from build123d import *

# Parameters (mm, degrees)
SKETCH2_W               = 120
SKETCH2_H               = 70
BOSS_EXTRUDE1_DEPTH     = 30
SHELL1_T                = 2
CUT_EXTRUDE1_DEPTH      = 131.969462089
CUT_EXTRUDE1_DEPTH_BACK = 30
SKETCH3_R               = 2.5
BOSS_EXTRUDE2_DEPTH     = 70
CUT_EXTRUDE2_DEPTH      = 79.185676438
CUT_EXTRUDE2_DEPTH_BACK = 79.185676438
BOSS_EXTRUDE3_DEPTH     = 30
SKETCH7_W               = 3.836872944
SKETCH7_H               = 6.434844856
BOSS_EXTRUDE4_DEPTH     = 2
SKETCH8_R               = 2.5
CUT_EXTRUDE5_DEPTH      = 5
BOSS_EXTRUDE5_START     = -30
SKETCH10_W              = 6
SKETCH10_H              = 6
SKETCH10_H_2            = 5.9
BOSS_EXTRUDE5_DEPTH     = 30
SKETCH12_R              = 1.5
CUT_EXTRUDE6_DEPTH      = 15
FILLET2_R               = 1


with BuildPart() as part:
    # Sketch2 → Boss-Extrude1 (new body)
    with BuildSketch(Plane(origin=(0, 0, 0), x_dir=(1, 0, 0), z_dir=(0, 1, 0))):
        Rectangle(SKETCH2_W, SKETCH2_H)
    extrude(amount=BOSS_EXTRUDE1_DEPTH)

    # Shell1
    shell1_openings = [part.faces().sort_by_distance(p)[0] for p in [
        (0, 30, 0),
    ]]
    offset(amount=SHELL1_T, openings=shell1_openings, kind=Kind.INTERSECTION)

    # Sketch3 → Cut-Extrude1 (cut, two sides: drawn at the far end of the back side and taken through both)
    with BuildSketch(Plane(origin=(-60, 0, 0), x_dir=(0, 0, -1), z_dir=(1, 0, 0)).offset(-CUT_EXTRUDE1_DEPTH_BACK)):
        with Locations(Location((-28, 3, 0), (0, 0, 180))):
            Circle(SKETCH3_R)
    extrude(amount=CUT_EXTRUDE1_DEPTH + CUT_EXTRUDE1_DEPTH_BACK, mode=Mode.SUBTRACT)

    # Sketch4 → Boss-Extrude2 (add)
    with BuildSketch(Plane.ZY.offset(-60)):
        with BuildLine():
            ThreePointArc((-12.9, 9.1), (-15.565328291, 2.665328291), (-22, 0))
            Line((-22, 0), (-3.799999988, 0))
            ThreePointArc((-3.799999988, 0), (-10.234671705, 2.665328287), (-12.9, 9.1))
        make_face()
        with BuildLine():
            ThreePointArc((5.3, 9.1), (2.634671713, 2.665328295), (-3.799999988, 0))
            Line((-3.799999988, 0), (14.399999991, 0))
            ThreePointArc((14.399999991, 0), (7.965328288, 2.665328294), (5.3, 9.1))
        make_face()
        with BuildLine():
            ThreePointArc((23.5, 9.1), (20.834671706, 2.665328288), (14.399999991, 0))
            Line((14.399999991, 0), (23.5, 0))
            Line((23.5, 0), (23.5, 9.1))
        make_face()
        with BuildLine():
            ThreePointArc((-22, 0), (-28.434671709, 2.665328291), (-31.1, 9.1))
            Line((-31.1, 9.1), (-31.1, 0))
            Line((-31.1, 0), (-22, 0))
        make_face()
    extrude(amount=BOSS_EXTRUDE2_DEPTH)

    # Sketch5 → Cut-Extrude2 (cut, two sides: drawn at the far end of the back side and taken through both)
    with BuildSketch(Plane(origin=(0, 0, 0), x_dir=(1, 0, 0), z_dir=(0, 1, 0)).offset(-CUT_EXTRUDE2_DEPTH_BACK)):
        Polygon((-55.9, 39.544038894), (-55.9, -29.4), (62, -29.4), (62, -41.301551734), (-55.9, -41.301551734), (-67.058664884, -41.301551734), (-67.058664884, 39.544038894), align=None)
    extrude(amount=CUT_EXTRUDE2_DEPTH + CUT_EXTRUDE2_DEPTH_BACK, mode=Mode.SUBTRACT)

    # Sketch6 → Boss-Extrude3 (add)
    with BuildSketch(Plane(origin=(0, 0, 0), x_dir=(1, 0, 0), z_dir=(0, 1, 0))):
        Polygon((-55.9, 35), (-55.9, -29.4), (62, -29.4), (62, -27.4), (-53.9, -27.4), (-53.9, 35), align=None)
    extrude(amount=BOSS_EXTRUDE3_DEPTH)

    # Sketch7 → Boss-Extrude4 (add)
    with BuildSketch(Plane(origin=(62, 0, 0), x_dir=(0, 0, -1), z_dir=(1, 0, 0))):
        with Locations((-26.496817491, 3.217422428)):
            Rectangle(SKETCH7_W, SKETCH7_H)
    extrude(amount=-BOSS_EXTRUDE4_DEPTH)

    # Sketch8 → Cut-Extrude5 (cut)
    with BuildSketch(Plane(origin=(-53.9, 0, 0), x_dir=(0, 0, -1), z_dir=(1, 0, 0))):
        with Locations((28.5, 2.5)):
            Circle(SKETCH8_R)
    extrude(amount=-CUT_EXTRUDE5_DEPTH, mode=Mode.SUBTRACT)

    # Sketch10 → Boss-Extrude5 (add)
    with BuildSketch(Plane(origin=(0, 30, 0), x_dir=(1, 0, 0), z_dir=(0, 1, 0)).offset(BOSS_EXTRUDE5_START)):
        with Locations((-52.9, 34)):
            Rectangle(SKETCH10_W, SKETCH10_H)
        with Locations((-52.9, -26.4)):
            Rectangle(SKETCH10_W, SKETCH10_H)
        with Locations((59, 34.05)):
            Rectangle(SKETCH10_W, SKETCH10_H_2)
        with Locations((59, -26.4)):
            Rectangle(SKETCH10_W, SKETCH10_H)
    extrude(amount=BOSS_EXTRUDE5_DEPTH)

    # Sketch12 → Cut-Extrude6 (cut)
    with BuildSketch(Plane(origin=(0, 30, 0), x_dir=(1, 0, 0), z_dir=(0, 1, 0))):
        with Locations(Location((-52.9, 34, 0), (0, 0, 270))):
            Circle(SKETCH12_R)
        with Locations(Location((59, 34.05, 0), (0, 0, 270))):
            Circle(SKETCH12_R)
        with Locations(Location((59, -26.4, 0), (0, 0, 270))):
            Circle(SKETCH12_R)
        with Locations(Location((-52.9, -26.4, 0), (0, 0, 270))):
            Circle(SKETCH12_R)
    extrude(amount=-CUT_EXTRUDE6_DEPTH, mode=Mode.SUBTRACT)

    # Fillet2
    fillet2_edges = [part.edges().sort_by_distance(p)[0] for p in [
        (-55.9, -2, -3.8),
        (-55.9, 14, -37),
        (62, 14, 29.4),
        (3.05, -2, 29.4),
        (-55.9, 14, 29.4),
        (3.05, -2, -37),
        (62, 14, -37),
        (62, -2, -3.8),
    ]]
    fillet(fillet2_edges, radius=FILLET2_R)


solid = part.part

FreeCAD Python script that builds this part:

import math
import FreeCAD as App
import Part
import Sketcher
from FreeCAD import Vector


def edges_at(feature, points):
    """Names of the edges that pass closest to the given points."""
    edges = feature.Shape.Edges
    near = lambda p: min(range(len(edges)), key=lambda i: edges[i].distToShape(Part.Vertex(*p))[0])
    return sorted({f"Edge{near(p) + 1}" for p in points})


def faces_at(feature, points):
    """Names of the faces that lie closest to the given points."""
    faces = feature.Shape.Faces
    near = lambda p: min(range(len(faces)), key=lambda i: faces[i].distToShape(Part.Vertex(*p))[0])
    return sorted({f"Face{near(p) + 1}" for p in points})


def add_polygon(sketch, points):
    """Adds a closed chain of lines whose ends are joined by coincident constraints."""
    first, n = sketch.GeometryCount, len(points)
    for a, b in zip(points, points[1:] + points[:1]):
        sketch.addGeometry(Part.LineSegment(App.Vector(*a, 0), App.Vector(*b, 0)), False)
    for i in range(n):
        sketch.addConstraint(Sketcher.Constraint("Coincident", first + i, 2, first + (i + 1) % n, 1))

doc = App.newDocument("Part")
params = doc.addObject("Spreadsheet::Sheet", "Params")
for row, (alias, value) in enumerate([
    ("sketch1_width", "120 mm"),
    ("sketch1_height", "70 mm"),
    ("pad1_length", "30 mm"),
    ("thickness_wall", "2 mm"),
    ("sketch2_diameter", "5 mm"),
    ("sketch3_radius", "9.1 mm"),
    ("pad2_length", "70 mm"),
    ("sketch4_width", "117.9 mm"),
    ("sketch5_width", "2 mm"),
    ("sketch5_width2", "117.9 mm"),
    ("sketch5_height", "64.4 mm"),
    ("pad3_length", "30 mm"),
    ("pad4_length", "2 mm"),
    ("sketch7_diameter", "5 mm"),
    ("pocket3_length", "5 mm"),
    ("sketch8_width", "6 mm"),
    ("sketch8_height", "5.9 mm"),
    ("pad5_length", "30 mm"),
    ("sketch9_diameter", "3 mm"),
    ("pocket4_length", "15 mm"),
    ("fillet_radius", "1 mm"),
], start=1):
    params.set(f"A{row}", alias)
    params.set(f"B{row}", "=" + value)
    params.setAlias(f"B{row}", alias)

body = doc.addObject("PartDesign::Body", "Body")

# Sketch on XZ plane
sketch1 = doc.addObject("Sketcher::SketchObject", "Sketch")
body.addObject(sketch1)
sketch1.AttachmentSupport = (doc.XZ_Plane, [""])
sketch1.MapMode = "FlatFace"
add_polygon(sketch1, [(-60, -35), (-60, 35), (60, 35), (60, -35)])  # lines 0-3
sketch1.addConstraint([
    Sketcher.Constraint("Vertical", 0),
    Sketcher.Constraint("Horizontal", 1),
    Sketcher.Constraint("Vertical", 2),
    Sketcher.Constraint("Horizontal", 3),
    Sketcher.Constraint("Symmetric", 0, 2, 2, 2, -1, 1),
    Sketcher.Constraint("DistanceX", 1, 1, 1, 2, 120.0),
    Sketcher.Constraint("DistanceY", 0, 1, 0, 2, 70.0),
])
sketch1.setExpression("Constraints[9]", "Params.sketch1_width")
sketch1.setExpression("Constraints[10]", "Params.sketch1_height")
pad1 = doc.addObject("PartDesign::Pad", "Pad")
body.addObject(pad1)
pad1.Profile = sketch1
pad1.setExpression("Length", "Params.pad1_length")
pad1.Reversed = True
doc.recompute()

thickness = doc.addObject("PartDesign::Thickness", "Thickness")
body.addObject(thickness)
thickness.Base = (pad1, faces_at(pad1, [(0, 30, 0)]))
thickness.setExpression("Value", "Params.thickness_wall")
thickness.Reversed = False
thickness.Join = "Intersection"

# Sketch on YZ plane
sketch2 = doc.addObject("Sketcher::SketchObject", "Sketch001")
body.addObject(sketch2)
sketch2.AttachmentSupport = (doc.YZ_Plane, [""])
sketch2.MapMode = "FlatFace"
sketch2.AttachmentOffset = App.Placement(Vector(0, 0, -60), App.Rotation())
sketch2.addGeometry(Part.Circle(Vector(3, 28, 0), Vector(0, 0, 1), 2.5), False)
sketch2.addConstraint([
    Sketcher.Constraint("Diameter", 0, 5.0),
    Sketcher.Constraint("DistanceX", -1, 1, 0, 3, 3.0),
    Sketcher.Constraint("DistanceY", -1, 1, 0, 3, 28.0),
])
sketch2.setExpression("Constraints[0]", "Params.sketch2_diameter")
pocket1 = doc.addObject("PartDesign::Pocket", "Pocket")
body.addObject(pocket1)
pocket1.Profile = sketch2
pocket1.Type = "ThroughAll"
pocket1.Midplane = True

# Sketch on YZ plane
sketch3 = doc.addObject("Sketcher::SketchObject", "Sketch002")
body.addObject(sketch3)
sketch3.AttachmentSupport = (doc.YZ_Plane, [""])
sketch3.MapMode = "FlatFace"
sketch3.AttachmentOffset = App.Placement(Vector(0, 0, 60), App.Rotation())
sketch3.addGeometry([
    Part.ArcOfCircle(Part.Circle(Vector(9.1, -22, 0), Vector(0, 0, 1), 9.1), math.radians(90), math.radians(180)),  # 0
    Part.LineSegment(Vector(0, -22, 0), Vector(0, -3.8, 0)),  # 1
    Part.ArcOfCircle(Part.Circle(Vector(9.1, -3.8, 0), Vector(0, 0, 1), 9.1), math.radians(180), math.radians(270)),  # 2
    Part.ArcOfCircle(Part.Circle(Vector(9.1, -3.8, 0), Vector(0, 0, 1), 9.1), math.radians(90), math.radians(180)),  # 3
    Part.LineSegment(Vector(0, -3.8, 0), Vector(0, 14.4, 0)),  # 4
    Part.ArcOfCircle(Part.Circle(Vector(9.1, 14.4, 0), Vector(0, 0, 1), 9.1), math.radians(-180), math.radians(-90)),  # 5
    Part.ArcOfCircle(Part.Circle(Vector(9.1, 14.4, 0), Vector(0, 0, 1), 9.1), math.radians(90), math.radians(180)),  # 6
    Part.LineSegment(Vector(0, 14.4, 0), Vector(0, 23.5, 0)),  # 7
    Part.LineSegment(Vector(0, 23.5, 0), Vector(9.1, 23.5, 0)),  # 8
    Part.ArcOfCircle(Part.Circle(Vector(9.1, -22, 0), Vector(0, 0, 1), 9.1), math.radians(180), math.radians(270)),  # 9
    Part.LineSegment(Vector(9.1, -31.1, 0), Vector(0, -31.1, 0)),  # 10
    Part.LineSegment(Vector(0, -31.1, 0), Vector(0, -22, 0)),  # 11
], False)
sketch3.addConstraint([
    Sketcher.Constraint("Tangent", 0, 2, 1, 1),
    Sketcher.Constraint("Tangent", 1, 2, 2, 1),
    Sketcher.Constraint("Tangent", 2, 2, 0, 1),
    Sketcher.Constraint("Tangent", 3, 2, 4, 1),
    Sketcher.Constraint("Tangent", 4, 2, 5, 1),
    Sketcher.Constraint("Tangent", 5, 2, 3, 1),
    Sketcher.Constraint("Tangent", 6, 2, 7, 1),
    Sketcher.Constraint("Coincident", 7, 2, 8, 1),
    Sketcher.Constraint("Tangent", 8, 2, 6, 1),
    Sketcher.Constraint("Tangent", 9, 2, 10, 1),
    Sketcher.Constraint("Coincident", 10, 2, 11, 1),
    Sketcher.Constraint("Tangent", 11, 2, 9, 1),
    Sketcher.Constraint("Vertical", 1),
    Sketcher.Constraint("Vertical", 4),
    Sketcher.Constraint("Vertical", 7),
    Sketcher.Constraint("Horizontal", 8),
    Sketcher.Constraint("Horizontal", 10),
    Sketcher.Constraint("Vertical", 11),
    Sketcher.Constraint("Coincident", 3, 3, 2, 3),
    Sketcher.Constraint("Coincident", 6, 3, 5, 3),
    Sketcher.Constraint("Coincident", 9, 3, 0, 3),
    Sketcher.Constraint("Equal", 0, 2),
    Sketcher.Constraint("Equal", 2, 3),
    Sketcher.Constraint("Equal", 3, 5),
    Sketcher.Constraint("Equal", 5, 6),
    Sketcher.Constraint("Equal", 6, 9),
    Sketcher.Constraint("PointOnObject", 0, 2, -2),
    Sketcher.Constraint("Radius", 0, 9.1),
    Sketcher.Constraint("DistanceY", 0, 3, -1, 1, 22.0),
])
sketch3.setExpression("Constraints[27]", "Params.sketch3_radius")
pad2 = doc.addObject("PartDesign::Pad", "Pad001")
body.addObject(pad2)
pad2.Profile = sketch3
pad2.setExpression("Length", "Params.pad2_length")
pad2.Reversed = True

# Sketch on XZ plane
sketch4 = doc.addObject("Sketcher::SketchObject", "Sketch003")
body.addObject(sketch4)
sketch4.AttachmentSupport = (doc.XZ_Plane, [""])
sketch4.MapMode = "FlatFace"
add_polygon(sketch4, [(-55.9, 29.4), (-55.9, -39.544039), (-67.058665, -39.544039), (-67.058665, 41.301552), (62, 41.301552), (62, 29.4)])  # lines 0-5
sketch4.addConstraint([
    Sketcher.Constraint("Vertical", 0),
    Sketcher.Constraint("Horizontal", 1),
    Sketcher.Constraint("Vertical", 2),
    Sketcher.Constraint("Horizontal", 3),
    Sketcher.Constraint("Vertical", 4),
    Sketcher.Constraint("Horizontal", 5),
    Sketcher.Constraint("DistanceX", 5, 2, 5, 1, 117.9),
    Sketcher.Constraint("DistanceX", -1, 1, 3, 2, 62.0),
    Sketcher.Constraint("DistanceY", -1, 1, 4, 2, 29.4),
    Sketcher.Constraint("DistanceY", 0, 2, 0, 1, 68.944039),
    Sketcher.Constraint("DistanceY", 2, 1, 2, 2, 80.845591),
    Sketcher.Constraint("DistanceX", 1, 2, 1, 1, 11.158665),
])
sketch4.setExpression("Constraints[12]", "Params.sketch4_width")
pocket2 = doc.addObject("PartDesign::Pocket", "Pocket001")
body.addObject(pocket2)
pocket2.Profile = sketch4
pocket2.Type = "ThroughAll"
pocket2.Midplane = True

# Sketch on XZ plane
sketch5 = doc.addObject("Sketcher::SketchObject", "Sketch004")
body.addObject(sketch5)
sketch5.AttachmentSupport = (doc.XZ_Plane, [""])
sketch5.MapMode = "FlatFace"
add_polygon(sketch5, [(-55.9, -35), (-55.9, 29.4), (62, 29.4), (62, 27.4), (-53.9, 27.4), (-53.9, -35)])  # lines 0-5
sketch5.addConstraint([
    Sketcher.Constraint("Vertical", 0),
    Sketcher.Constraint("Horizontal", 1),
    Sketcher.Constraint("Vertical", 2),
    Sketcher.Constraint("Horizontal", 3),
    Sketcher.Constraint("Vertical", 4),
    Sketcher.Constraint("Horizontal", 5),
    Sketcher.Constraint("Equal", 5, 2),
    Sketcher.Constraint("DistanceX", 5, 2, 5, 1, 2.0),
    Sketcher.Constraint("DistanceX", 1, 1, 1, 2, 117.9),
    Sketcher.Constraint("DistanceY", 0, 1, 0, 2, 64.4),
    Sketcher.Constraint("DistanceX", -1, 1, 1, 2, 62.0),
    Sketcher.Constraint("DistanceY", 4, 2, -1, 1, 35.0),
])
sketch5.setExpression("Constraints[13]", "Params.sketch5_width")
sketch5.setExpression("Constraints[14]", "Params.sketch5_width2")
sketch5.setExpression("Constraints[15]", "Params.sketch5_height")
pad3 = doc.addObject("PartDesign::Pad", "Pad002")
body.addObject(pad3)
pad3.Profile = sketch5
pad3.setExpression("Length", "Params.pad3_length")
pad3.Reversed = True

# Sketch on YZ plane
sketch6 = doc.addObject("Sketcher::SketchObject", "Sketch005")
body.addObject(sketch6)
sketch6.AttachmentSupport = (doc.YZ_Plane, [""])
sketch6.MapMode = "FlatFace"
sketch6.AttachmentOffset = App.Placement(Vector(0, 0, 62), App.Rotation())
add_polygon(sketch6, [(6.434845, 28.415254), (0, 28.415254), (0, 24.578381), (6.434845, 24.578381)])  # lines 0-3
sketch6.addConstraint([
    Sketcher.Constraint("Horizontal", 0),
    Sketcher.Constraint("Vertical", 1),
    Sketcher.Constraint("Horizontal", 2),
    Sketcher.Constraint("Vertical", 3),
    Sketcher.Constraint("PointOnObject", 0, 2, -2),
    Sketcher.Constraint("DistanceX", 0, 2, 0, 1, 6.434845),
    Sketcher.Constraint("DistanceY", 1, 2, 1, 1, 3.836873),
    Sketcher.Constraint("DistanceY", -1, 1, 1, 2, 24.578381),
])
pad4 = doc.addObject("PartDesign::Pad", "Pad003")
body.addObject(pad4)
pad4.Profile = sketch6
pad4.setExpression("Length", "Params.pad4_length")
pad4.Reversed = True

# Sketch on YZ plane
sketch7 = doc.addObject("Sketcher::SketchObject", "Sketch006")
body.addObject(sketch7)
sketch7.AttachmentSupport = (doc.YZ_Plane, [""])
sketch7.MapMode = "FlatFace"
sketch7.AttachmentOffset = App.Placement(Vector(0, 0, -53.9), App.Rotation())
sketch7.addGeometry(Part.Circle(Vector(2.5, -28.5, 0), Vector(0, 0, 1), 2.5), False)
sketch7.addConstraint([
    Sketcher.Constraint("Diameter", 0, 5.0),
    Sketcher.Constraint("DistanceX", -1, 1, 0, 3, 2.5),
    Sketcher.Constraint("DistanceY", 0, 3, -1, 1, 28.5),
])
sketch7.setExpression("Constraints[0]", "Params.sketch7_diameter")
pocket3 = doc.addObject("PartDesign::Pocket", "Pocket002")
body.addObject(pocket3)
pocket3.Profile = sketch7
pocket3.setExpression("Length", "Params.pocket3_length")

# Sketch on XZ plane
sketch8 = doc.addObject("Sketcher::SketchObject", "Sketch007")
body.addObject(sketch8)
sketch8.AttachmentSupport = (doc.XZ_Plane, [""])
sketch8.MapMode = "FlatFace"
add_polygon(sketch8, [(-55.9, -37), (-55.9, -31), (-49.9, -31), (-49.9, -37)])  # lines 0-3
add_polygon(sketch8, [(-55.9, 23.4), (-55.9, 29.4), (-49.9, 29.4), (-49.9, 23.4)])  # lines 4-7
add_polygon(sketch8, [(56, -37), (56, -31.1), (62, -31.1), (62, -37)])  # lines 8-11
add_polygon(sketch8, [(56, 23.4), (56, 29.4), (62, 29.4), (62, 23.4)])  # lines 12-15
sketch8.addConstraint([
    Sketcher.Constraint("Vertical", 0),
    Sketcher.Constraint("Horizontal", 1),
    Sketcher.Constraint("Vertical", 2),
    Sketcher.Constraint("Horizontal", 3),
    Sketcher.Constraint("Vertical", 4),
    Sketcher.Constraint("Horizontal", 5),
    Sketcher.Constraint("Vertical", 6),
    Sketcher.Constraint("Horizontal", 7),
    Sketcher.Constraint("Vertical", 8),
    Sketcher.Constraint("Horizontal", 9),
    Sketcher.Constraint("Vertical", 10),
    Sketcher.Constraint("Horizontal", 11),
    Sketcher.Constraint("Vertical", 12),
    Sketcher.Constraint("Horizontal", 13),
    Sketcher.Constraint("Vertical", 14),
    Sketcher.Constraint("Horizontal", 15),
    Sketcher.Constraint("Horizontal", 3, 2, 10, 2),
    Sketcher.Constraint("Horizontal", 5, 2, 12, 2),
    Sketcher.Constraint("Horizontal", 7, 2, 14, 2),
    Sketcher.Constraint("Vertical", 3, 2, 4, 2),
    Sketcher.Constraint("Vertical", 2, 2, 5, 2),
    Sketcher.Constraint("Vertical", 11, 2, 12, 2),
    Sketcher.Constraint("Vertical", 10, 2, 13, 2),
    Sketcher.Constraint("Equal", 7, 9),
    Sketcher.Constraint("Equal", 15, 0),
    Sketcher.Constraint("Equal", 2, 4),
    Sketcher.Constraint("DistanceX", 1, 1, 1, 2, 6.0),
    Sketcher.Constraint("DistanceY", 8, 1, 8, 2, 5.9),
    Sketcher.Constraint("DistanceY", 0, 2, -1, 1, 31.0),
    Sketcher.Constraint("DistanceX", -1, 1, 8, 2, 56.0),
    Sketcher.Constraint("DistanceX", 0, 2, -1, 1, 55.9),
    Sketcher.Constraint("DistanceY", -1, 1, 4, 2, 29.4),
])
sketch8.setExpression("Constraints[42]", "Params.sketch8_width")
sketch8.setExpression("Constraints[43]", "Params.sketch8_height")
pad5 = doc.addObject("PartDesign::Pad", "Pad004")
body.addObject(pad5)
pad5.Profile = sketch8
pad5.setExpression("Length", "Params.pad5_length")
pad5.Reversed = True

# Sketch on XZ plane
sketch9 = doc.addObject("Sketcher::SketchObject", "Sketch008")
body.addObject(sketch9)
sketch9.AttachmentSupport = (doc.XZ_Plane, [""])
sketch9.MapMode = "FlatFace"
sketch9.AttachmentOffset = App.Placement(Vector(0, 0, -30), App.Rotation())
sketch9.addGeometry([
    Part.Circle(Vector(-52.9, -34, 0), Vector(0, 0, 1), 1.5),
    Part.Circle(Vector(59, -34.05, 0), Vector(0, 0, 1), 1.5),
    Part.Circle(Vector(59, 26.4, 0), Vector(0, 0, 1), 1.5),
    Part.Circle(Vector(-52.9, 26.4, 0), Vector(0, 0, 1), 1.5),
], False)
sketch9.addConstraint([
    Sketcher.Constraint("Equal", 0, 1),
    Sketcher.Constraint("Equal", 1, 2),
    Sketcher.Constraint("Equal", 2, 3),
    Sketcher.Constraint("Horizontal", 2, 3, 3, 3),
    Sketcher.Constraint("Vertical", 1, 3, 2, 3),
    Sketcher.Constraint("Vertical", 0, 3, 3, 3),
    Sketcher.Constraint("Diameter", 0, 3.0),
    Sketcher.Constraint("DistanceY", 0, 3, -1, 1, 34.0),
    Sketcher.Constraint("DistanceX", -1, 1, 1, 3, 59.0),
    Sketcher.Constraint("DistanceX", 0, 3, -1, 1, 52.9),
    Sketcher.Constraint("DistanceY", -1, 1, 2, 3, 26.4),
    Sketcher.Constraint("DistanceY", 1, 3, -1, 1, 34.05),
])
sketch9.setExpression("Constraints[6]", "Params.sketch9_diameter")
pocket4 = doc.addObject("PartDesign::Pocket", "Pocket003")
body.addObject(pocket4)
pocket4.Profile = sketch9
pocket4.setExpression("Length", "Params.pocket4_length")
pocket4.Reversed = True
doc.recompute()

fillet = doc.addObject("PartDesign::Fillet", "Fillet")
body.addObject(fillet)
fillet.Base = (pocket4, edges_at(pocket4, [
    (-55.9, -2, -3.8),
    (-55.9, 14, -37),
    (62, 14, 29.4),
    (3.05, -2, 29.4),
    (-55.9, 14, 29.4),
    (3.05, -2, -37),
    (62, 14, -37),
    (62, -2, -3.8),
]))
fillet.setExpression("Radius", "Params.fillet_radius")

doc.recompute()
